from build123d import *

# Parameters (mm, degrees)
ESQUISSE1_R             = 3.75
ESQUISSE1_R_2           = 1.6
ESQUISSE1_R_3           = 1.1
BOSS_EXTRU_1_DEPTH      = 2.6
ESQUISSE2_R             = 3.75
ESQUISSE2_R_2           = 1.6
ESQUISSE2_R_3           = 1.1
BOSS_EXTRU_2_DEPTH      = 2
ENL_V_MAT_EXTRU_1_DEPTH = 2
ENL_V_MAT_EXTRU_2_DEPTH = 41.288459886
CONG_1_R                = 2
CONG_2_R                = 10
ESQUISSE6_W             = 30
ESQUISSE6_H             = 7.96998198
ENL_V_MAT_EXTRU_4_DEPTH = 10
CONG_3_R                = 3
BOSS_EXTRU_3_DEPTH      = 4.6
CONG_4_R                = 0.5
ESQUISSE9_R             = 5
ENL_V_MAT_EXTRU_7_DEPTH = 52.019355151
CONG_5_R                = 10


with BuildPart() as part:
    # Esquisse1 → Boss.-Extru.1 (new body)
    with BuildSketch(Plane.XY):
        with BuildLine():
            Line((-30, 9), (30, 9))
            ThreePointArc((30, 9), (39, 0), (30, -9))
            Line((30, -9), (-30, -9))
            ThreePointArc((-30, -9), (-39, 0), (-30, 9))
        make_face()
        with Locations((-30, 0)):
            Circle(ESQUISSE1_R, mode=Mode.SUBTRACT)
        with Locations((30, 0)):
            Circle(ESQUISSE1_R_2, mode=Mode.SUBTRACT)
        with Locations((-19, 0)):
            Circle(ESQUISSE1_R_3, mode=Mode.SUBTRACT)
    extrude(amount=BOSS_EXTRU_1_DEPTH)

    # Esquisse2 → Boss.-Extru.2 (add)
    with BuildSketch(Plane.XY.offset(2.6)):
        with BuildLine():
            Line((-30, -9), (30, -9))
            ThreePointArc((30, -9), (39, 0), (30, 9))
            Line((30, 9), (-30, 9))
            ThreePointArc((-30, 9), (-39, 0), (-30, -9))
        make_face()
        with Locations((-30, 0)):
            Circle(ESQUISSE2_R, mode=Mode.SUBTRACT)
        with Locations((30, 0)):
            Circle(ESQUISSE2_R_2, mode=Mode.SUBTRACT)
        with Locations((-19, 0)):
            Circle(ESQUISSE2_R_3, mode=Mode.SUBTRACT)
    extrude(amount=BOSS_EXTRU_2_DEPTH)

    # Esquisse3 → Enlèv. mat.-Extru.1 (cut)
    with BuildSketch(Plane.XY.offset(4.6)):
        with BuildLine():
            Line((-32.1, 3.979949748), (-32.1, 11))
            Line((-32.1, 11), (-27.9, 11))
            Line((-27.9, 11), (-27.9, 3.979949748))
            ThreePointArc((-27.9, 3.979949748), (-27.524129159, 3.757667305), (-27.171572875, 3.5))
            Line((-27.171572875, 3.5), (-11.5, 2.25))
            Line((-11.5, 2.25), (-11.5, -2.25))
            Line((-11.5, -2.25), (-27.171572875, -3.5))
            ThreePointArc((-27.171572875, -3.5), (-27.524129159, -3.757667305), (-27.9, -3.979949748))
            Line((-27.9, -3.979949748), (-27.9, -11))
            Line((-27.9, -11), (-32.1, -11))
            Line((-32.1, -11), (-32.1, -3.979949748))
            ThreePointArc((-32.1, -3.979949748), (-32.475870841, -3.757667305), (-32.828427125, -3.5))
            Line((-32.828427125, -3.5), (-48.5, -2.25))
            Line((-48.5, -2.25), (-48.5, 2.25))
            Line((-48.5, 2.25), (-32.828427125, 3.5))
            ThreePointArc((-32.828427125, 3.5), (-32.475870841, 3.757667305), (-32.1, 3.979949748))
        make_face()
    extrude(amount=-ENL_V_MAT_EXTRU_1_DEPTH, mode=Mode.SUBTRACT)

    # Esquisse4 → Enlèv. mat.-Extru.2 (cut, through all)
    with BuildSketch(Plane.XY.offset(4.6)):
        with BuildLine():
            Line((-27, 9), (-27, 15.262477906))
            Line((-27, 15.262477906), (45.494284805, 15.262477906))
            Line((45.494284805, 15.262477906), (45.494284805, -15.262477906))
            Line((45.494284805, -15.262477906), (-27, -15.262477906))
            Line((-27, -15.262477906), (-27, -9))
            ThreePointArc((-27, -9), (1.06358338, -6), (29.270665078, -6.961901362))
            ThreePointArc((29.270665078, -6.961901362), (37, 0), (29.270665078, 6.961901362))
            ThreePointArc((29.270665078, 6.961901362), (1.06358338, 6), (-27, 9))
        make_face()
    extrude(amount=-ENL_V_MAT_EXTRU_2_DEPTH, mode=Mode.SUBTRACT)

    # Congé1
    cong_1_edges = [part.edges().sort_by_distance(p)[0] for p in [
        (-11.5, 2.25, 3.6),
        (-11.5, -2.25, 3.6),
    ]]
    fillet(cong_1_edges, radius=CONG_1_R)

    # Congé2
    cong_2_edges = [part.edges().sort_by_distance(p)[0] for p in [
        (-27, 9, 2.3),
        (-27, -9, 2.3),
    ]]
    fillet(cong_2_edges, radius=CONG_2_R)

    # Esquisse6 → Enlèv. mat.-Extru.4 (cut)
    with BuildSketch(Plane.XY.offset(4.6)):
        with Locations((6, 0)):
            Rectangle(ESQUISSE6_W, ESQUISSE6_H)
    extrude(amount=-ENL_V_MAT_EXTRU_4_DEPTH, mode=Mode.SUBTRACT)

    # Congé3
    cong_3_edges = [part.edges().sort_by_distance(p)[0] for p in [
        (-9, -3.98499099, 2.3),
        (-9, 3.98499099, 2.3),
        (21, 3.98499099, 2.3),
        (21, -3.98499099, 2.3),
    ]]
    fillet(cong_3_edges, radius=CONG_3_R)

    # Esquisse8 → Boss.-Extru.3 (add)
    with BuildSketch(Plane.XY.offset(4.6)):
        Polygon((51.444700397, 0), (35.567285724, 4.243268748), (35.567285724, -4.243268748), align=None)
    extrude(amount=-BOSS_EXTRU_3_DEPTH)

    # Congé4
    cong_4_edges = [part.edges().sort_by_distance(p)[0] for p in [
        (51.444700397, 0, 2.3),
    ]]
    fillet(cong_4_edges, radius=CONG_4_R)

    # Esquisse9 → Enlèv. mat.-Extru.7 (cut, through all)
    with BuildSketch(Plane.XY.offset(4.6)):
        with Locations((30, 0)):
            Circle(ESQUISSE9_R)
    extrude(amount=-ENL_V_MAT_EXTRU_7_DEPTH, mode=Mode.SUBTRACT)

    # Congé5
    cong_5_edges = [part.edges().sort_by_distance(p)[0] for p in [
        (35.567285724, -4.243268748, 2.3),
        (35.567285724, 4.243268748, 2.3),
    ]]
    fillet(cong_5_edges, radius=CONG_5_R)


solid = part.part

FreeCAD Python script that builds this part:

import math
import FreeCAD as App
import Part
import Sketcher

V = App.Vector
Q = App.Units.Quantity


def edges_at(feature, points):
    """Names of the edges that pass closest to the given points."""
    edges = feature.Shape.Edges
    near = lambda p: min(range(len(edges)), key=lambda i: edges[i].distToShape(Part.Vertex(*p))[0])
    return sorted({f"Edge{near(p) + 1}" for p in points})


def add_polygon(sketch, points):
    """Adds a closed chain of lines whose ends are joined by coincident constraints."""
    first, n = sketch.GeometryCount, len(points)
    for a, b in zip(points, points[1:] + points[:1]):
        sketch.addGeometry(Part.LineSegment(App.Vector(*a, 0), App.Vector(*b, 0)), False)
    for i in range(n):
        sketch.addConstraint(Sketcher.Constraint("Coincident", first + i, 2, first + (i + 1) % n, 1))

doc = App.newDocument("Part")
body = doc.addObject("PartDesign::Body", "Body")

# Sketch on XY plane
sketch1 = doc.addObject("Sketcher::SketchObject", "Sketch")
body.addObject(sketch1)
sketch1.AttachmentSupport = (doc.XY_Plane, [""])
sketch1.MapMode = "FlatFace"
sketch1.addGeometry([
    Part.LineSegment(V(30, 9, 0), V(-30, 9, 0)),  # 0
    Part.ArcOfCircle(Part.Circle(V(-30, 0, 0), V(0, 0, 1), 9), math.radians(90), math.radians(270)),  # 1
    Part.LineSegment(V(-30, -9, 0), V(30, -9, 0)),  # 2
    Part.ArcOfCircle(Part.Circle(V(30, 0, 0), V(0, 0, 1), 9), math.radians(-90), math.radians(90)),  # 3
    Part.Circle(V(30, 0, 0), V(0, 0, 1), 1.6),  # 4
    Part.Circle(V(-19, 0, 0), V(0, 0, 1), 1.1),  # 5
    Part.Circle(V(-30, 0, 0), V(0, 0, 1), 3.8),  # 6
], False)
sketch1.addConstraint([
    Sketcher.Constraint("Tangent", 0, 2, 1, 1),
    Sketcher.Constraint("Tangent", 1, 2, 2, 1),
    Sketcher.Constraint("Tangent", 2, 2, 3, 1),
    Sketcher.Constraint("Tangent", 3, 2, 0, 1),
    Sketcher.Constraint("Horizontal", 0),
    Sketcher.Constraint("Horizontal", 2),
    Sketcher.Constraint("Coincident", 4, 3, 3, 3),
    Sketcher.Constraint("Coincident", 6, 3, 1, 3),
    Sketcher.Constraint("Symmetric", 1, 3, 3, 3, -1, 1),
    Sketcher.Constraint("PointOnObject", 5, 3, -1),
    Sketcher.Constraint("Radius", 1, Q("9 mm")),
    Sketcher.Constraint("Diameter", 4, Q("3.2 mm")),
    Sketcher.Constraint("Diameter", 5, Q("2.2 mm")),
    Sketcher.Constraint("Diameter", 6, Q("7.5 mm")),
    Sketcher.Constraint("DistanceX", 0, 2, 0, 1, Q("60 mm")),
    Sketcher.Constraint("DistanceX", 5, 3, -1, 1, Q("19 mm")),
])
pad1 = doc.addObject("PartDesign::Pad", "Pad")
body.addObject(pad1)
pad1.Profile = sketch1
pad1.Length = 2.6

# Sketch on XY plane
sketch2 = doc.addObject("Sketcher::SketchObject", "Sketch001")
body.addObject(sketch2)
sketch2.AttachmentSupport = (doc.XY_Plane, [""])
sketch2.MapMode = "FlatFace"
sketch2.AttachmentOffset = App.Placement(V(0, 0, 2.6), App.Rotation())
sketch2.addGeometry([
    Part.LineSegment(V(-30, -9, 0), V(30, -9, 0)),  # 0
    Part.ArcOfCircle(Part.Circle(V(30, 0, 0), V(0, 0, 1), 9), math.radians(-90), math.radians(90)),  # 1
    Part.LineSegment(V(30, 9, 0), V(-30, 9, 0)),  # 2
    Part.ArcOfCircle(Part.Circle(V(-30, 0, 0), V(0, 0, 1), 9), math.radians(90), math.radians(270)),  # 3
    Part.Circle(V(-30, 0, 0), V(0, 0, 1), 3.8),  # 4
    Part.Circle(V(-19, 0, 0), V(0, 0, 1), 1.1),  # 5
    Part.Circle(V(30, 0, 0), V(0, 0, 1), 1.6),  # 6
], False)
sketch2.addConstraint([
    Sketcher.Constraint("Tangent", 0, 2, 1, 1),
    Sketcher.Constraint("Tangent", 1, 2, 2, 1),
    Sketcher.Constraint("Tangent", 2, 2, 3, 1),
    Sketcher.Constraint("Tangent", 3, 2, 0, 1),
    Sketcher.Constraint("Horizontal", 0),
    Sketcher.Constraint("Horizontal", 2),
    Sketcher.Constraint("Coincident", 4, 3, 3, 3),
    Sketcher.Constraint("Coincident", 6, 3, 1, 3),
    Sketcher.Constraint("Symmetric", 1, 3, 3, 3, -1, 1),
    Sketcher.Constraint("PointOnObject", 5, 3, -1),
    Sketcher.Constraint("Radius", 1, Q("9 mm")),
    Sketcher.Constraint("Diameter", 4, Q("7.5 mm")),
    Sketcher.Constraint("Diameter", 5, Q("2.2 mm")),
    Sketcher.Constraint("Diameter", 6, Q("3.2 mm")),
    Sketcher.Constraint("DistanceX", 0, 1, 0, 2, Q("60 mm")),
    Sketcher.Constraint("DistanceX", 5, 3, -1, 1, Q("19 mm")),
])
pad2 = doc.addObject("PartDesign::Pad", "Pad001")
body.addObject(pad2)
pad2.Profile = sketch2
pad2.Length = 2

# Sketch on XY plane
sketch3 = doc.addObject("Sketcher::SketchObject", "Sketch002")
body.addObject(sketch3)
sketch3.AttachmentSupport = (doc.XY_Plane, [""])
sketch3.MapMode = "FlatFace"
sketch3.AttachmentOffset = App.Placement(V(0, 0, 4.6), App.Rotation())
sketch3.addGeometry([
    Part.LineSegment(V(-32.1, 11, 0), V(-32.1, 4, 0)),  # 0
    Part.ArcOfCircle(Part.Circle(V(-30, 0, 0), V(0, 0, 1), 4.5), math.radians(117.82), math.radians(128.94)),  # 1
    Part.LineSegment(V(-32.8, 3.5, 0), V(-48.5, 2.2, 0)),  # 2
    Part.LineSegment(V(-48.5, 2.2, 0), V(-48.5, -2.2, 0)),  # 3
    Part.LineSegment(V(-48.5, -2.2, 0), V(-32.8, -3.5, 0)),  # 4
    Part.ArcOfCircle(Part.Circle(V(-30, 0, 0), V(0, 0, 1), 4.5), math.radians(-128.94), math.radians(-117.82)),  # 5
    Part.LineSegment(V(-32.1, -4, 0), V(-32.1, -11, 0)),  # 6
    Part.LineSegment(V(-32.1, -11, 0), V(-27.9, -11, 0)),  # 7
    Part.LineSegment(V(-27.9, -11, 0), V(-27.9, -4, 0)),  # 8
    Part.ArcOfCircle(Part.Circle(V(-30, 0, 0), V(0, 0, 1), 4.5), math.radians(-62.18), math.radians(-51.06)),  # 9
    Part.LineSegment(V(-27.2, -3.5, 0), V(-11.5, -2.2, 0)),  # 10
    Part.LineSegment(V(-11.5, -2.2, 0), V(-11.5, 2.2, 0)),  # 11
    Part.LineSegment(V(-11.5, 2.2, 0), V(-27.2, 3.5, 0)),  # 12
    Part.ArcOfCircle(Part.Circle(V(-30, 0, 0), V(0, 0, 1), 4.5), math.radians(51.06), math.radians(62.18)),  # 13
    Part.LineSegment(V(-27.9, 4, 0), V(-27.9, 11, 0)),  # 14
    Part.LineSegment(V(-27.9, 11, 0), V(-32.1, 11, 0)),  # 15
], False)
sketch3.addConstraint([
    Sketcher.Constraint("Coincident", 0, 2, 1, 1),
    Sketcher.Constraint("Coincident", 1, 2, 2, 1),
    Sketcher.Constraint("Coincident", 2, 2, 3, 1),
    Sketcher.Constraint("Coincident", 3, 2, 4, 1),
    Sketcher.Constraint("Coincident", 4, 2, 5, 1),
    Sketcher.Constraint("Coincident", 5, 2, 6, 1),
    Sketcher.Constraint("Coincident", 6, 2, 7, 1),
    Sketcher.Constraint("Coincident", 7, 2, 8, 1),
    Sketcher.Constraint("Coincident", 8, 2, 9, 1),
    Sketcher.Constraint("Coincident", 9, 2, 10, 1),
    Sketcher.Constraint("Coincident", 10, 2, 11, 1),
    Sketcher.Constraint("Coincident", 11, 2, 12, 1),
    Sketcher.Constraint("Coincident", 12, 2, 13, 1),
    Sketcher.Constraint("Coincident", 13, 2, 14, 1),
    Sketcher.Constraint("Coincident", 14, 2, 15, 1),
    Sketcher.Constraint("Coincident", 15, 2, 0, 1),
    Sketcher.Constraint("Vertical", 0),
    Sketcher.Constraint("Vertical", 3),
    Sketcher.Constraint("Vertical", 6),
    Sketcher.Constraint("Horizontal", 7),
    Sketcher.Constraint("Vertical", 8),
    Sketcher.Constraint("Vertical", 11),
    Sketcher.Constraint("Vertical", 14),
    Sketcher.Constraint("Horizontal", 15),
    Sketcher.Constraint("Coincident", 5, 3, 1, 3),
    Sketcher.Constraint("Coincident", 9, 3, 1, 3),
    Sketcher.Constraint("Coincident", 13, 3, 1, 3),
    Sketcher.Constraint("Equal", 1, 5),
    Sketcher.Constraint("Equal", 5, 9),
    Sketcher.Constraint("Equal", 9, 13),
    Sketcher.Constraint("Symmetric", 1, 2, 4, 2, -1),
    Sketcher.Constraint("Symmetric", 7, 2, 14, 2, -1),
    Sketcher.Constraint("Parallel", 2, 10),
    Sketcher.Constraint("Parallel", 4, 12),
    Sketcher.Constraint("Horizontal", 5, 2, 8, 2),
    Sketcher.Constraint("Horizontal", 4, 2, 9, 2),
    Sketcher.Constraint("Horizontal", 3, 2, 10, 2),
    Sketcher.Constraint("Horizontal", 2, 2, 11, 2),
    Sketcher.Constraint("Horizontal", 1, 2, 12, 2),
    Sketcher.Constraint("Horizontal", 0, 2, 13, 2),
    Sketcher.Constraint("Radius", 1, Q("4.5 mm")),
    Sketcher.Constraint("DistanceX", 7, 1, 7, 2, Q("4.2 mm")),
    Sketcher.Constraint("DistanceY", 3, 2, 3, 1, Q("4.5 mm")),
    Sketcher.Constraint("DistanceX", 1, 3, -1, 1, Q("30 mm")),
    Sketcher.Constraint("DistanceY", 6, 2, -1, 1, Q("11 mm")),
    Sketcher.Constraint("DistanceY", 4, 2, 1, 2, Q("7 mm")),
    Sketcher.Constraint("DistanceX", 2, 2, -1, 1, Q("48.5 mm")),
])
pocket1 = doc.addObject("PartDesign::Pocket", "Pocket")
body.addObject(pocket1)
pocket1.Profile = sketch3
pocket1.Length = 2

# Sketch on XY plane
sketch4 = doc.addObject("Sketcher::SketchObject", "Sketch003")
body.addObject(sketch4)
sketch4.AttachmentSupport = (doc.XY_Plane, [""])
sketch4.MapMode = "FlatFace"
sketch4.AttachmentOffset = App.Placement(V(0, 0, 4.6), App.Rotation())
sketch4.addGeometry([
    Part.LineSegment(V(-27, 15, 0), V(-27, 9, 0)),  # 0
    Part.ArcOfCircle(Part.Circle(V(8, 207, 0), V(0, 0, 1), 201), math.radians(-100.13), math.radians(-84.02)),  # 1
    Part.ArcOfCircle(Part.Circle(V(30, 0, 0), V(0, 0, 1), 7), math.radians(-96), math.radians(96)),  # 2
    Part.ArcOfCircle(Part.Circle(V(8, -207, 0), V(0, 0, 1), 201), math.radians(84.02), math.radians(100.13)),  # 3
    Part.LineSegment(V(-27, -9, 0), V(-27, -15, 0)),  # 4
    Part.LineSegment(V(-27, -15, 0), V(45, -15, 0)),  # 5
    Part.LineSegment(V(45, -15, 0), V(45, 15, 0)),  # 6
    Part.LineSegment(V(45, 15, 0), V(-27, 15, 0)),  # 7
], False)
sketch4.addConstraint([
    Sketcher.Constraint("Coincident", 0, 2, 1, 1),
    Sketcher.Constraint("Tangent", 1, 2, 2, 2),
    Sketcher.Constraint("Tangent", 2, 1, 3, 1),
    Sketcher.Constraint("Coincident", 3, 2, 4, 1),
    Sketcher.Constraint("Coincident", 4, 2, 5, 1),
    Sketcher.Constraint("Coincident", 5, 2, 6, 1),
    Sketcher.Constraint("Coincident", 6, 2, 7, 1),
    Sketcher.Constraint("Coincident", 7, 2, 0, 1),
    Sketcher.Constraint("Vertical", 0),
    Sketcher.Constraint("Vertical", 4),
    Sketcher.Constraint("Horizontal", 5),
    Sketcher.Constraint("Vertical", 6),
    Sketcher.Constraint("Horizontal", 7),
    Sketcher.Constraint("Equal", 1, 3),
    Sketcher.Constraint("Symmetric", 1, 3, 3, 3, -1),
    Sketcher.Constraint("Symmetric", 4, 2, 7, 2, -1),
    Sketcher.Constraint("Radius", 2, Q("7 mm")),
    Sketcher.Constraint("DistanceX", -1, 1, 2, 3, Q("30 mm")),
    Sketcher.Constraint("DistanceX", 0, 2, -1, 1, Q("27 mm")),
    Sketcher.Constraint("DistanceY", -1, 1, 0, 2, Q("9 mm")),
    Sketcher.Constraint("Radius", 1, Q("200.924421 mm")),
    Sketcher.Constraint("DistanceX", 5, 1, 5, 2, Q("72.494285 mm")),
    Sketcher.Constraint("DistanceY", 0, 2, 0, 1, Q("6.262478 mm")),
])
pocket2 = doc.addObject("PartDesign::Pocket", "Pocket001")
body.addObject(pocket2)
pocket2.Profile = sketch4
pocket2.Type = "ThroughAll"
doc.recompute()

fillet = doc.addObject("PartDesign::Fillet", "Fillet")
body.addObject(fillet)
fillet.Base = (pocket2, edges_at(pocket2, [(-11.5, 2.25, 3.6), (-11.5, -2.25, 3.6)]))
fillet.Radius = 2
doc.recompute()

fillet2 = doc.addObject("PartDesign::Fillet", "Fillet001")
body.addObject(fillet2)
fillet2.Base = (fillet, edges_at(fillet, [(-27, 9, 2.3), (-27, -9, 2.3)]))
fillet2.Radius = 10

# Sketch on XY plane
sketch5 = doc.addObject("Sketcher::SketchObject", "Sketch004")
body.addObject(sketch5)
sketch5.AttachmentSupport = (doc.XY_Plane, [""])
sketch5.MapMode = "FlatFace"
sketch5.AttachmentOffset = App.Placement(V(0, 0, 4.6), App.Rotation())
add_polygon(sketch5, [(-9, 4), (-9, -4), (21, -4), (21, 4)])  # lines 0-3
sketch5.addConstraint([
    Sketcher.Constraint("Vertical", 0),
    Sketcher.Constraint("Horizontal", 1),
    Sketcher.Constraint("Vertical", 2),
    Sketcher.Constraint("Horizontal", 3),
    Sketcher.Constraint("DistanceX", 1, 1, 1, 2, Q("30 mm")),
    Sketcher.Constraint("DistanceX", 0, 2, -1, 1, Q("9 mm")),
    Sketcher.Constraint("DistanceY", 0, 2, 0, 1, Q("7.969982 mm")),
    Sketcher.Constraint("DistanceY", 0, 2, -1, 1, Q("3.984991 mm")),
])
pocket3 = doc.addObject("PartDesign::Pocket", "Pocket002")
body.addObject(pocket3)
pocket3.Profile = sketch5
pocket3.Length = 10
doc.recompute()

fillet3 = doc.addObject("PartDesign::Fillet", "Fillet002")
body.addObject(fillet3)
fillet3.Base = (pocket3, edges_at(pocket3, [
    (-9, -3.985, 2.3),
    (-9, 3.985, 2.3),
    (21, 3.985, 2.3),
    (21, -3.985, 2.3),
]))
fillet3.Radius = 3

# Sketch on XY plane
sketch6 = doc.addObject("Sketcher::SketchObject", "Sketch005")
body.addObject(sketch6)
sketch6.AttachmentSupport = (doc.XY_Plane, [""])
sketch6.MapMode = "FlatFace"
sketch6.AttachmentOffset = App.Placement(V(0, 0, 4.6), App.Rotation())
add_polygon(sketch6, [(51, 0), (36, 4), (36, -4)])  # lines 0-2
sketch6.addConstraint([
    Sketcher.Constraint("Vertical", 1),
    Sketcher.Constraint("PointOnObject", 2, 2, -1),
    Sketcher.Constraint("Equal", 0, 2),
    Sketcher.Constraint("DistanceX", -1, 1, 2, 2, Q("51.4447 mm")),
    Sketcher.Constraint("DistanceY", 1, 2, 1, 1, Q("8.486537 mm")),
    Sketcher.Constraint("Distance", 0, Q("16.434647 mm")),
])
pad3 = doc.addObject("PartDesign::Pad", "Pad002")
body.addObject(pad3)
pad3.Profile = sketch6
pad3.Length = 4.6
pad3.Reversed = True
doc.recompute()

fillet4 = doc.addObject("PartDesign::Fillet", "Fillet003")
body.addObject(fillet4)
fillet4.Base = (pad3, edges_at(pad3, [(51.445, 0, 2.3)]))
fillet4.Radius = 0.5

# Sketch on XY plane
sketch7 = doc.addObject("Sketcher::SketchObject", "Sketch006")
body.addObject(sketch7)
sketch7.AttachmentSupport = (doc.XY_Plane, [""])
sketch7.MapMode = "FlatFace"
sketch7.AttachmentOffset = App.Placement(V(0, 0, 4.6), App.Rotation())
sketch7.addGeometry(Part.Circle(V(30, 0, 0), V(0, 0, 1), 5), False)
sketch7.addConstraint([
    Sketcher.Constraint("PointOnObject", 0, 3, -1),
    Sketcher.Constraint("Diameter", 0, Q("10 mm")),
    Sketcher.Constraint("DistanceX", -1, 1, 0, 3, Q("30 mm")),
])
pocket4 = doc.addObject("PartDesign::Pocket", "Pocket003")
body.addObject(pocket4)
pocket4.Profile = sketch7
pocket4.Type = "ThroughAll"
doc.recompute()

fillet5 = doc.addObject("PartDesign::Fillet", "Fillet004")
body.addObject(fillet5)
fillet5.Base = (pocket4, edges_at(pocket4, [(35.567, -4.243, 2.3), (35.567, 4.243, 2.3)]))
fillet5.Radius = 10

doc.recompute()
